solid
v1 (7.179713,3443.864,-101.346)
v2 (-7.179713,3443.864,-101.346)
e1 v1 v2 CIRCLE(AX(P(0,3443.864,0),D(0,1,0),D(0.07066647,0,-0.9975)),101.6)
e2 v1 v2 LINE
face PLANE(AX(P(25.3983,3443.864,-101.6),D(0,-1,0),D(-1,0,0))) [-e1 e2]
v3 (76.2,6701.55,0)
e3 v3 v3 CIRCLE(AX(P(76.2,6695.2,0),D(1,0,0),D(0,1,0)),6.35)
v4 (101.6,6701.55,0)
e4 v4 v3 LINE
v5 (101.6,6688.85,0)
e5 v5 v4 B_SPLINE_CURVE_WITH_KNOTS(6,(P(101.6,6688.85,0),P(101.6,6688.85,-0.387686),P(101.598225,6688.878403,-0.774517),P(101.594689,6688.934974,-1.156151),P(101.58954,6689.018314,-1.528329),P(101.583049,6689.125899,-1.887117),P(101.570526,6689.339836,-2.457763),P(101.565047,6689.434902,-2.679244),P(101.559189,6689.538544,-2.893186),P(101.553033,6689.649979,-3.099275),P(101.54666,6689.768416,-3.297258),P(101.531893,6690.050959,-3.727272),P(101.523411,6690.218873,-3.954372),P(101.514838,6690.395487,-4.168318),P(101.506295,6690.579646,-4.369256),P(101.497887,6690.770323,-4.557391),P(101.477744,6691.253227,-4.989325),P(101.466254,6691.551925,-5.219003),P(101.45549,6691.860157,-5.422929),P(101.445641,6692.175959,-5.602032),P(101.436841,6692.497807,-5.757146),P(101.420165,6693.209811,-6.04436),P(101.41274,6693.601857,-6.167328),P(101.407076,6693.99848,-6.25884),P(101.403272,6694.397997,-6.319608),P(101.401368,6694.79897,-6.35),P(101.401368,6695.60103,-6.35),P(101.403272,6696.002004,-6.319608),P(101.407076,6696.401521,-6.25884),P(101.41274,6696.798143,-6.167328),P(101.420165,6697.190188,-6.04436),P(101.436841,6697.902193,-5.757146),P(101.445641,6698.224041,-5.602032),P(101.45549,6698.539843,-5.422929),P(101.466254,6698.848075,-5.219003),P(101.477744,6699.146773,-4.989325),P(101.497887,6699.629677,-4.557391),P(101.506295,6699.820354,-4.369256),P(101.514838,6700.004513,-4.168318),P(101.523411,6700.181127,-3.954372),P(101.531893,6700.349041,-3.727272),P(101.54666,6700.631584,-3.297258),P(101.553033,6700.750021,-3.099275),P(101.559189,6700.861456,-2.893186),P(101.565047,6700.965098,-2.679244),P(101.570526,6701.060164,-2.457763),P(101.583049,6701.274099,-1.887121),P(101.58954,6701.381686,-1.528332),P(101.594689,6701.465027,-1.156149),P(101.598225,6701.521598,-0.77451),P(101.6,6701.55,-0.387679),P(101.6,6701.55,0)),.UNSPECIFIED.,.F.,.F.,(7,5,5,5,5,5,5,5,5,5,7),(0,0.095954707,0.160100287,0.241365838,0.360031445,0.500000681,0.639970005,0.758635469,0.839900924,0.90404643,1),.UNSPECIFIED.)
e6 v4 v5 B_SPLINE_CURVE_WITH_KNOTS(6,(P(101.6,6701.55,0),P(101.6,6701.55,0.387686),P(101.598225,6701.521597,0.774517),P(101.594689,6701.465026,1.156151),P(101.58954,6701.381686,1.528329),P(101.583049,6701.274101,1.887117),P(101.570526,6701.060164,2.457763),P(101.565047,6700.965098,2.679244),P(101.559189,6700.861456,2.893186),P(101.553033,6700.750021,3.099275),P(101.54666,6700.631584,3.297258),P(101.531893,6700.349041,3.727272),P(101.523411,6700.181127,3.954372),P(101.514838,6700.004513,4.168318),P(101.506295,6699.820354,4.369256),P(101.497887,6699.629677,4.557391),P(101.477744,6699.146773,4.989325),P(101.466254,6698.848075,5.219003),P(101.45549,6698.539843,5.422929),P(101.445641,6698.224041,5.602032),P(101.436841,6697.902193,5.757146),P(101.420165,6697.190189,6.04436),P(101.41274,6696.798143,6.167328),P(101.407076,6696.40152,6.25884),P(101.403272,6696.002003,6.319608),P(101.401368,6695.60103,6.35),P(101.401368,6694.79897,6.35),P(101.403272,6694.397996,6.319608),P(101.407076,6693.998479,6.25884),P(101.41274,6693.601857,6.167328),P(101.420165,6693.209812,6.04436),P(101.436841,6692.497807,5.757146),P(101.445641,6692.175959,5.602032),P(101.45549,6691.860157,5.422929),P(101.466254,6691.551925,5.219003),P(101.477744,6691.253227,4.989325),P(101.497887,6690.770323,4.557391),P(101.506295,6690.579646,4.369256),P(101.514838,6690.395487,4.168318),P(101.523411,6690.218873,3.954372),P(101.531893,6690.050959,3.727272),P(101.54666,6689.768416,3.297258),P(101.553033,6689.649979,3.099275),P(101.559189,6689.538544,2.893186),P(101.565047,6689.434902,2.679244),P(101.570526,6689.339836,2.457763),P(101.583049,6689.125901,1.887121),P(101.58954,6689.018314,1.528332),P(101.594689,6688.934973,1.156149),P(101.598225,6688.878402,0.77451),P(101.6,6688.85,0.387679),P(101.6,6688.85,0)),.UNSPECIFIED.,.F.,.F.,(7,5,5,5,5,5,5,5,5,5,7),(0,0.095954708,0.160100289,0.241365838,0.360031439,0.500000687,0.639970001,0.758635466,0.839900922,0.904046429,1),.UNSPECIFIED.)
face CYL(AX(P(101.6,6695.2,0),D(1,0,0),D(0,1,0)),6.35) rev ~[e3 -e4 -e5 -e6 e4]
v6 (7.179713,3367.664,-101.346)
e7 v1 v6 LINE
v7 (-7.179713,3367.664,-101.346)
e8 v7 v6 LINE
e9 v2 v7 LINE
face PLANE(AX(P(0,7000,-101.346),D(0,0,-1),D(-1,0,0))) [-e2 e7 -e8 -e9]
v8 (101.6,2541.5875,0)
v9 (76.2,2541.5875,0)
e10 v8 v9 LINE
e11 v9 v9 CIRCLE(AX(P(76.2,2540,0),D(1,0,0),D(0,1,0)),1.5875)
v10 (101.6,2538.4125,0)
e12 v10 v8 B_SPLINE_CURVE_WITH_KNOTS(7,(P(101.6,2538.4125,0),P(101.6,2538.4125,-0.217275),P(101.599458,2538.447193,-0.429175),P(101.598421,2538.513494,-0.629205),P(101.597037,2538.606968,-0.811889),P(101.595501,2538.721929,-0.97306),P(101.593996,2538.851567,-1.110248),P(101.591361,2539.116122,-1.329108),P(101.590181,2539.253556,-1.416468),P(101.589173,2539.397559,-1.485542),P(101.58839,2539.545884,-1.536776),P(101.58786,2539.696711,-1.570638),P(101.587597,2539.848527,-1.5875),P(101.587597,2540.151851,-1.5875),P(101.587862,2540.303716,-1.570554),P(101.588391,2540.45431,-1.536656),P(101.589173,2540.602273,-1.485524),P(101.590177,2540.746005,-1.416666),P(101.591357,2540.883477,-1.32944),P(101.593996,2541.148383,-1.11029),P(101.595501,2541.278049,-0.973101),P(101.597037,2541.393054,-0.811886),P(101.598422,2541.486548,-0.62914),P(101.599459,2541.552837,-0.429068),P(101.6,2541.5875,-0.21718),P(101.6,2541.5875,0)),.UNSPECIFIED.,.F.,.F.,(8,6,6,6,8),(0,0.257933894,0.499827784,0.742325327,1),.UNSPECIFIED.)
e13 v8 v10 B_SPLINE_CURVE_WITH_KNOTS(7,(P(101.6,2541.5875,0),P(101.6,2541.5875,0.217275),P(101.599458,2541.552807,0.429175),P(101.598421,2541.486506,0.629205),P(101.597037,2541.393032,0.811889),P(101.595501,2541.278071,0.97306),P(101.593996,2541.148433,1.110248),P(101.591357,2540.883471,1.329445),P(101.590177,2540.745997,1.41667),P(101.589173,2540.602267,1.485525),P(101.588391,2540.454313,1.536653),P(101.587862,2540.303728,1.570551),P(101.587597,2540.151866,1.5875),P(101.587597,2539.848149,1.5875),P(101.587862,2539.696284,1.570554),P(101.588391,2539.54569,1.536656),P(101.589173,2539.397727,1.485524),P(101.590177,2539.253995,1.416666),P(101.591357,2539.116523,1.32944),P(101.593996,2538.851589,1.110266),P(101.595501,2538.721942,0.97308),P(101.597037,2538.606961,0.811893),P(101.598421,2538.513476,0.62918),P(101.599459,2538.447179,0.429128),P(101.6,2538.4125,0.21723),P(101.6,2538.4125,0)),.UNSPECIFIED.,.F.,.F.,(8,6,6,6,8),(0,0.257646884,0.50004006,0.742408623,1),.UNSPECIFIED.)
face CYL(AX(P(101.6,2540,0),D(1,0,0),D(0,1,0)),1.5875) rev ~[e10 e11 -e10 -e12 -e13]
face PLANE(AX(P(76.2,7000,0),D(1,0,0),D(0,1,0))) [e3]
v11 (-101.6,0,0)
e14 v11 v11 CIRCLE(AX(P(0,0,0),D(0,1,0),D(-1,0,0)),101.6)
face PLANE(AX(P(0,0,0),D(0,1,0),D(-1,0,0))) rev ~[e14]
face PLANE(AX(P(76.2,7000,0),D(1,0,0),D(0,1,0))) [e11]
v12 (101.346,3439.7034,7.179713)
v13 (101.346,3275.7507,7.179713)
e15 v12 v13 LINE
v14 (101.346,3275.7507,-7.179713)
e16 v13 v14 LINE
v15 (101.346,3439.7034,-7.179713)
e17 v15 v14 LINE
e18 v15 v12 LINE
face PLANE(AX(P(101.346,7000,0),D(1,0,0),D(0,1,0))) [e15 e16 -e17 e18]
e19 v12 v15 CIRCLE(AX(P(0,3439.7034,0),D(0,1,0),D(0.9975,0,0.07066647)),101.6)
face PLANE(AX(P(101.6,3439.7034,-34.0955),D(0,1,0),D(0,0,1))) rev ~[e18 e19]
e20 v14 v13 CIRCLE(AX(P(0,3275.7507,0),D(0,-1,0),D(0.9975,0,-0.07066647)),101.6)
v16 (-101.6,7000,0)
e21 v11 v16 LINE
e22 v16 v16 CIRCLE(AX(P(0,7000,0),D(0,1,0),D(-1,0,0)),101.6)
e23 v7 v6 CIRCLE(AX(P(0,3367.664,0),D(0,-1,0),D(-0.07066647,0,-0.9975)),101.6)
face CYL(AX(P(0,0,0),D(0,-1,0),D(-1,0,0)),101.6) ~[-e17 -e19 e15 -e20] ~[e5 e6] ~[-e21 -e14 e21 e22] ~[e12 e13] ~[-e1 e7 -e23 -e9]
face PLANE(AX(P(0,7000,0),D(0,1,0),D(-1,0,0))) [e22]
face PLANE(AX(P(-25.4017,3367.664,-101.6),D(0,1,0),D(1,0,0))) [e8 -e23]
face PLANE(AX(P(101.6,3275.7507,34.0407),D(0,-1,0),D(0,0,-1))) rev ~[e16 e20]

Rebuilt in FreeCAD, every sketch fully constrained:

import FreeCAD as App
import Part
import Sketcher
Q = App.Units.Quantity


def add_polygon(sketch, points):
    """Adds a closed chain of lines whose ends are joined by coincident constraints."""
    first, n = sketch.GeometryCount, len(points)
    for a, b in zip(points, points[1:] + points[:1]):
        sketch.addGeometry(Part.LineSegment(App.Vector(*a, 0), App.Vector(*b, 0)), False)
    for i in range(n):
        sketch.addConstraint(Sketcher.Constraint("Coincident", first + i, 2, first + (i + 1) % n, 1))

doc = App.newDocument("Part")
body = doc.addObject("PartDesign::Body", "Body")

sketch1 = doc.addObject("Sketcher::SketchObject", "Sketch")
body.addObject(sketch1)
sketch1.AttachmentSupport = (doc.XZ_Plane, [""])
sketch1.MapMode = "FlatFace"
sketch1.addGeometry(Part.Circle(App.Vector(0, 0, 0), App.Vector(0, 0, 1), 102), False)
sketch1.addConstraint([
    Sketcher.Constraint("Coincident", 0, 3, -1, 1),
    Sketcher.Constraint("Diameter", 0, Q("8 in")),
])
pad1 = doc.addObject("PartDesign::Pad", "Pad")
body.addObject(pad1)
pad1.Profile = sketch1
pad1.Length = 7000
pad1.Reversed = True

sketch2 = doc.addObject("Sketcher::SketchObject", "Sketch001")
body.addObject(sketch2)
sketch2.AttachmentSupport = (doc.YZ_Plane, [""])
sketch2.MapMode = "FlatFace"
sketch2.AttachmentOffset = App.Placement(App.Vector(0, 0, 4 * 25.4), App.Rotation())
add_polygon(sketch2, [(3276, 34), (3276, -34), (3440, -34), (3440, 34)])
sketch2.addConstraint([
    Sketcher.Constraint("Vertical", 0),
    Sketcher.Constraint("Horizontal", 1),
    Sketcher.Constraint("Vertical", 2),
    Sketcher.Constraint("Horizontal", 3),
    Sketcher.Constraint("DistanceX", 1, 1, 1, 2, Q("163.9527 mm")),
    Sketcher.Constraint("DistanceY", 0, 2, 0, 1, Q("68.1362 mm")),
    Sketcher.Constraint("DistanceX", -1, 1, 1, 2, Q("135.4214 in")),
    Sketcher.Constraint("DistanceY", 0, 2, -1, 1, Q("34.0955 mm")),
])
pocket1 = doc.addObject("PartDesign::Pocket", "Pocket")
body.addObject(pocket1)
pocket1.Profile = sketch2
pocket1.Length = Q("0.01 in")

sketch3 = doc.addObject("Sketcher::SketchObject", "Sketch002")
body.addObject(sketch3)
sketch3.AttachmentSupport = (doc.XY_Plane, [""])
sketch3.MapMode = "FlatFace"
sketch3.AttachmentOffset = App.Placement(App.Vector(0, 0, -4 * 25.4), App.Rotation())
add_polygon(sketch3, [(-25, 3444), (25, 3444), (25, 3368), (-25, 3368)])
sketch3.addConstraint([
    Sketcher.Constraint("Horizontal", 0),
    Sketcher.Constraint("Vertical", 1),
    Sketcher.Constraint("Horizontal", 2),
    Sketcher.Constraint("Vertical", 3),
    Sketcher.Constraint("DistanceX", 0, 1, 0, 2, Q("2 in")),
    Sketcher.Constraint("DistanceY", 1, 2, 1, 1, Q("3 in")),
    Sketcher.Constraint("DistanceY", -1, 1, 0, 2, Q("135.5852 in")),
    Sketcher.Constraint("DistanceX", -1, 1, 0, 2, Q("25.3983 mm")),
])
pocket2 = doc.addObject("PartDesign::Pocket", "Pocket001")
body.addObject(pocket2)
pocket2.Profile = sketch3
pocket2.Length = Q("0.01 in")
pocket2.Reversed = True

sketch4 = doc.addObject("Sketcher::SketchObject", "Sketch003")
body.addObject(sketch4)
sketch4.AttachmentSupport = (doc.YZ_Plane, [""])
sketch4.MapMode = "FlatFace"
sketch4.AttachmentOffset = App.Placement(App.Vector(0, 0, 4 * 25.4), App.Rotation())
sketch4.addGeometry(Part.Circle(App.Vector(6695, 0, 0), App.Vector(0, 0, 1), 6), False)
sketch4.addConstraint([
    Sketcher.Constraint("PointOnObject", 0, 3, -1),
    Sketcher.Constraint("Diameter", 0, Q("0.5 in")),
    Sketcher.Constraint("DistanceX", -1, 1, 0, 3, Q("6695.2 mm")),
])
pocket3 = doc.addObject("PartDesign::Pocket", "Pocket002")
body.addObject(pocket3)
pocket3.Profile = sketch4
pocket3.Length = Q("1 in")

sketch5 = doc.addObject("Sketcher::SketchObject", "Sketch004")
body.addObject(sketch5)
sketch5.AttachmentSupport = (doc.YZ_Plane, [""])
sketch5.MapMode = "FlatFace"
sketch5.AttachmentOffset = App.Placement(App.Vector(0, 0, 4 * 25.4), App.Rotation())
sketch5.addGeometry(Part.Circle(App.Vector(2540, 0, 0), App.Vector(0, 0, 1), 1.6), False)
sketch5.addConstraint([
    Sketcher.Constraint("PointOnObject", 0, 3, -1),
    Sketcher.Constraint("Diameter", 0, Q("0.125 in")),
    Sketcher.Constraint("DistanceX", -1, 1, 0, 3, Q("100 in")),
])
pocket4 = doc.addObject("PartDesign::Pocket", "Pocket003")
body.addObject(pocket4)
pocket4.Profile = sketch5
pocket4.Length = Q("1 in")

doc.recompute()
